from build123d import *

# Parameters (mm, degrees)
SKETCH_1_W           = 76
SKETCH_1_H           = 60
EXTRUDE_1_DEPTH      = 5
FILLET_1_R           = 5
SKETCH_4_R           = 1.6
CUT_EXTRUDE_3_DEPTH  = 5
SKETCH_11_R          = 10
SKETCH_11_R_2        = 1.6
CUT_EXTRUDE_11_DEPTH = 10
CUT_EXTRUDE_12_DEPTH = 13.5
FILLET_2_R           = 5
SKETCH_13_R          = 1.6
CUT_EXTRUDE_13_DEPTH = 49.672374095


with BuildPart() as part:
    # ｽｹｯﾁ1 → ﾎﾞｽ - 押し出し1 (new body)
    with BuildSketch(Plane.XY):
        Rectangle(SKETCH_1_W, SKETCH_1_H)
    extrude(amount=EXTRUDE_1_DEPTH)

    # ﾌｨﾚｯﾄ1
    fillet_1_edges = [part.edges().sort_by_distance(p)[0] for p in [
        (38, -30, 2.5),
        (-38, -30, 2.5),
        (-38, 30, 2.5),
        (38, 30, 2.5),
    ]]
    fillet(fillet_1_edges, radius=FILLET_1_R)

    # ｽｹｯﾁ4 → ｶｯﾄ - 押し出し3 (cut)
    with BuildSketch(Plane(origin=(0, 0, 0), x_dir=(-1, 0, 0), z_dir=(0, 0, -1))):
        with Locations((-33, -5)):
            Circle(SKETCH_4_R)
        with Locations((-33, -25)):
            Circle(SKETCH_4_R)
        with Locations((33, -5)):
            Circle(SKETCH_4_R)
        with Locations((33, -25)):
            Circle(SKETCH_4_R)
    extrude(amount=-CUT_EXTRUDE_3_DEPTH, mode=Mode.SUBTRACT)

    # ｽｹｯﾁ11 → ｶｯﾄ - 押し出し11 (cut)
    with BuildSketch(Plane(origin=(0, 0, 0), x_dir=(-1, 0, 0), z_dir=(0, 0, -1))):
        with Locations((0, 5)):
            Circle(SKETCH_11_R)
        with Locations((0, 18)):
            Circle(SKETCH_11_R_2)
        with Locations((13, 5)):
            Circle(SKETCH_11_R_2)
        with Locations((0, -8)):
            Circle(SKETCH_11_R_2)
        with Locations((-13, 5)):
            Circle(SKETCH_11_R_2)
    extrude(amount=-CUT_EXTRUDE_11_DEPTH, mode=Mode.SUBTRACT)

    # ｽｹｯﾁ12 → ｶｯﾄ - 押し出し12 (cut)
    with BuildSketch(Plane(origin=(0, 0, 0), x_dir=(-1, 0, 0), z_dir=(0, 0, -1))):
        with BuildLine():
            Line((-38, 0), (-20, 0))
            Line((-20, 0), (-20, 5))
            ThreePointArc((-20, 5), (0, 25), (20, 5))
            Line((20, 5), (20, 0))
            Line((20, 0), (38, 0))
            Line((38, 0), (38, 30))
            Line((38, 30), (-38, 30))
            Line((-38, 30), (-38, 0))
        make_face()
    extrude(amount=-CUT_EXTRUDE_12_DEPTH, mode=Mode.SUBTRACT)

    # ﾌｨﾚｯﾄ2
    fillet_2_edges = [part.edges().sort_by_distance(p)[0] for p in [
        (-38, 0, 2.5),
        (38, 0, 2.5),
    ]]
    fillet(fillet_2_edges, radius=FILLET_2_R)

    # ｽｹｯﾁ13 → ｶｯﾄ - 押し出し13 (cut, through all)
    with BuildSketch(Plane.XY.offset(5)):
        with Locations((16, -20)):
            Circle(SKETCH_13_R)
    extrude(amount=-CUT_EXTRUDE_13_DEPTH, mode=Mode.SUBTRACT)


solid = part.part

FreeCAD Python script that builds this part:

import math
import FreeCAD as App
import Part
import Sketcher
from FreeCAD import Vector


def edges_at(feature, points):
    """Names of the edges that pass closest to the given points."""
    edges = feature.Shape.Edges
    near = lambda p: min(range(len(edges)), key=lambda i: edges[i].distToShape(Part.Vertex(*p))[0])
    return sorted({f"Edge{near(p) + 1}" for p in points})


def add_polygon(sketch, points):
    """Adds a closed chain of lines whose ends are joined by coincident constraints."""
    first, n = sketch.GeometryCount, len(points)
    for a, b in zip(points, points[1:] + points[:1]):
        sketch.addGeometry(Part.LineSegment(App.Vector(*a, 0), App.Vector(*b, 0)), False)
    for i in range(n):
        sketch.addConstraint(Sketcher.Constraint("Coincident", first + i, 2, first + (i + 1) % n, 1))

doc = App.newDocument("Part")
body = doc.addObject("PartDesign::Body", "Body")

# Sketch on XY plane
sketch1 = body.newObject("Sketcher::SketchObject", "Sketch")
sketch1.AttachmentSupport = (doc.getObject("XY_Plane"), [""])
sketch1.MapMode = "FlatFace"
add_polygon(sketch1, [(-38, 30), (-38, -30), (38, -30), (38, 30)])  # lines 0-3
sketch1.addConstraint([
    Sketcher.Constraint("Vertical", 0),
    Sketcher.Constraint("Horizontal", 1),
    Sketcher.Constraint("Vertical", 2),
    Sketcher.Constraint("Horizontal", 3),
    Sketcher.Constraint("Symmetric", 0, 2, 2, 2, -1, 1),
    Sketcher.Constraint("DistanceX", 1, 1, 1, 2, 76.0),
    Sketcher.Constraint("DistanceY", 0, 2, 0, 1, 60.0),
])
pad1 = body.newObject("PartDesign::Pad", "Pad")
pad1.Profile = sketch1
pad1.Length = 5
doc.recompute()

fillet = body.newObject("PartDesign::Fillet", "Fillet")
fillet.Base = (pad1, edges_at(pad1, [
    (38, -30, 2.5),
    (-38, -30, 2.5),
    (-38, 30, 2.5),
    (38, 30, 2.5),
]))
fillet.Radius = 5

# Sketch on XY plane
sketch2 = body.newObject("Sketcher::SketchObject", "Sketch001")
sketch2.AttachmentSupport = (doc.getObject("XY_Plane"), [""])
sketch2.MapMode = "FlatFace"
sketch2.addGeometry([
    Part.Circle(Vector(33, -5, 0), Vector(0, 0, 1), 1.6),
    Part.Circle(Vector(33, -25, 0), Vector(0, 0, 1), 1.6),
    Part.Circle(Vector(-33, -5, 0), Vector(0, 0, 1), 1.6),
    Part.Circle(Vector(-33, -25, 0), Vector(0, 0, 1), 1.6),
], False)
sketch2.addConstraint([
    Sketcher.Constraint("Equal", 0, 1),
    Sketcher.Constraint("Equal", 1, 2),
    Sketcher.Constraint("Equal", 2, 3),
    Sketcher.Constraint("Symmetric", 0, 3, 2, 3, -2),
    Sketcher.Constraint("Symmetric", 1, 3, 3, 3, -2),
    Sketcher.Constraint("Vertical", 0, 3, 1, 3),
    Sketcher.Constraint("Diameter", 0, 3.2),
    Sketcher.Constraint("DistanceX", -1, 1, 0, 3, 33.0),
    Sketcher.Constraint("DistanceY", 0, 3, -1, 1, 5.0),
    Sketcher.Constraint("DistanceY", 1, 3, -1, 1, 25.0),
])
pocket1 = body.newObject("PartDesign::Pocket", "Pocket")
pocket1.Profile = sketch2
pocket1.Length = 5
pocket1.Reversed = True

# Sketch on XY plane
sketch3 = body.newObject("Sketcher::SketchObject", "Sketch002")
sketch3.AttachmentSupport = (doc.getObject("XY_Plane"), [""])
sketch3.MapMode = "FlatFace"
sketch3.addGeometry([
    Part.Circle(Vector(0, 5, 0), Vector(0, 0, 1), 10),  # 0
    Part.Circle(Vector(0, 18, 0), Vector(0, 0, 1), 1.6),  # 1
    Part.Circle(Vector(-13, 5, 0), Vector(0, 0, 1), 1.6),  # 2
    Part.Circle(Vector(0, -8, 0), Vector(0, 0, 1), 1.6),  # 3
    Part.Circle(Vector(13, 5, 0), Vector(0, 0, 1), 1.6),  # 4
], False)
sketch3.addConstraint([
    Sketcher.Constraint("Equal", 1, 2),
    Sketcher.Constraint("Equal", 2, 3),
    Sketcher.Constraint("Equal", 3, 4),
    Sketcher.Constraint("Symmetric", 2, 3, 4, 3, -2),
    Sketcher.Constraint("PointOnObject", 0, 3, -2),
    Sketcher.Constraint("PointOnObject", 1, 3, -2),
    Sketcher.Constraint("PointOnObject", 3, 3, -2),
    Sketcher.Constraint("Horizontal", 0, 3, 2, 3),
    Sketcher.Constraint("Diameter", 0, 20.0),
    Sketcher.Constraint("Diameter", 1, 3.2),
    Sketcher.Constraint("DistanceY", -1, 1, 0, 3, 5.0),
    Sketcher.Constraint("DistanceY", -1, 1, 1, 3, 18.0),
    Sketcher.Constraint("DistanceX", 2, 3, -1, 1, 13.0),
    Sketcher.Constraint("DistanceY", 3, 3, -1, 1, 8.0),
])
pocket2 = body.newObject("PartDesign::Pocket", "Pocket001")
pocket2.Profile = sketch3
pocket2.Length = 10
pocket2.Reversed = True

# Sketch on XY plane
sketch4 = body.newObject("Sketcher::SketchObject", "Sketch003")
sketch4.AttachmentSupport = (doc.getObject("XY_Plane"), [""])
sketch4.MapMode = "FlatFace"
sketch4.addGeometry([
    Part.LineSegment(Vector(38, 0, 0), Vector(20, 0, 0)),  # 0
    Part.LineSegment(Vector(20, 0, 0), Vector(20, 5, 0)),  # 1
    Part.ArcOfCircle(Part.Circle(Vector(0, 5, 0), Vector(0, 0, 1), 20), math.radians(0), math.radians(180)),  # 2
    Part.LineSegment(Vector(-20, 5, 0), Vector(-20, 0, 0)),  # 3
    Part.LineSegment(Vector(-20, 0, 0), Vector(-38, 0, 0)),  # 4
    Part.LineSegment(Vector(-38, 0, 0), Vector(-38, 30, 0)),  # 5
    Part.LineSegment(Vector(-38, 30, 0), Vector(38, 30, 0)),  # 6
    Part.LineSegment(Vector(38, 30, 0), Vector(38, 0, 0)),  # 7
], False)
sketch4.addConstraint([
    Sketcher.Constraint("Coincident", 0, 2, 1, 1),
    Sketcher.Constraint("Tangent", 1, 2, 2, 1),
    Sketcher.Constraint("Tangent", 2, 2, 3, 1),
    Sketcher.Constraint("Coincident", 3, 2, 4, 1),
    Sketcher.Constraint("Coincident", 4, 2, 5, 1),
    Sketcher.Constraint("Coincident", 5, 2, 6, 1),
    Sketcher.Constraint("Coincident", 6, 2, 7, 1),
    Sketcher.Constraint("Coincident", 7, 2, 0, 1),
    Sketcher.Constraint("Horizontal", 0),
    Sketcher.Constraint("Vertical", 1),
    Sketcher.Constraint("Vertical", 3),
    Sketcher.Constraint("Horizontal", 4),
    Sketcher.Constraint("Vertical", 5),
    Sketcher.Constraint("Horizontal", 6),
    Sketcher.Constraint("Vertical", 7),
    Sketcher.Constraint("Symmetric", 0, 2, 3, 2, -1, 1),
    Sketcher.Constraint("Symmetric", 4, 2, 7, 2, -2),
    Sketcher.Constraint("Radius", 2, 20.0),
    Sketcher.Constraint("DistanceX", 0, 2, 0, 1, 18.0),
    Sketcher.Constraint("DistanceY", 1, 1, 1, 2, 5.0),
    Sketcher.Constraint("DistanceY", 5, 1, 5, 2, 30.0),
])
pocket3 = body.newObject("PartDesign::Pocket", "Pocket002")
pocket3.Profile = sketch4
pocket3.Length = 13.5
pocket3.Reversed = True
doc.recompute()

fillet2 = body.newObject("PartDesign::Fillet", "Fillet001")
fillet2.Base = (pocket3, edges_at(pocket3, [(-38, 0, 2.5), (38, 0, 2.5)]))
fillet2.Radius = 5

# Sketch on XY plane
sketch5 = body.newObject("Sketcher::SketchObject", "Sketch004")
sketch5.AttachmentSupport = (doc.getObject("XY_Plane"), [""])
sketch5.MapMode = "FlatFace"
sketch5.AttachmentOffset = App.Placement(Vector(0, 0, 5), App.Rotation())
sketch5.addGeometry(Part.Circle(Vector(16, -20, 0), Vector(0, 0, 1), 1.6), False)
sketch5.addConstraint([
    Sketcher.Constraint("Diameter", 0, 3.2),
    Sketcher.Constraint("DistanceX", -1, 1, 0, 3, 16.0),
    Sketcher.Constraint("DistanceY", 0, 3, -1, 1, 20.0),
])
pocket4 = body.newObject("PartDesign::Pocket", "Pocket003")
pocket4.Profile = sketch5
pocket4.Type = "ThroughAll"

doc.recompute()
